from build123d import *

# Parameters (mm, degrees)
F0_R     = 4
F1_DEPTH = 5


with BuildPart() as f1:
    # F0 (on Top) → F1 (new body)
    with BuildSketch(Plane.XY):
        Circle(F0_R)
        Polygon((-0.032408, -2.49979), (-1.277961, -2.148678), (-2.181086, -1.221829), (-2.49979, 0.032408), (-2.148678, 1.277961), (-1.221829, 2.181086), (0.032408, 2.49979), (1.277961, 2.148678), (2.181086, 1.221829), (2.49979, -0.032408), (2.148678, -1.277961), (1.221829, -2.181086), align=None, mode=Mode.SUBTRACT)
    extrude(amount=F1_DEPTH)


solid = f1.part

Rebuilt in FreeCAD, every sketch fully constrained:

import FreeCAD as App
import Part
import Sketcher

V = App.Vector

doc = App.newDocument("Part")
body = doc.addObject("PartDesign::Body", "Body")

sketch1 = body.newObject("Sketcher::SketchObject", "Sketch")
sketch1.AttachmentSupport = (doc.getObject("XY_Plane"), [""])
sketch1.MapMode = "FlatFace"
sketch1.addGeometry(Part.Circle(V(0, 0, 0), V(0, 0, 1), 4), False)
sketch1.addGeometry(Part.LineSegment(V(1.221829, -2.181086, 0), V(-0.032408, -2.49979, 0)), False)
sketch1.addGeometry(Part.LineSegment(V(-0.032408, -2.49979, 0), V(-1.277961, -2.148678, 0)), False)
sketch1.addGeometry(Part.LineSegment(V(-1.277961, -2.148678, 0), V(-2.181086, -1.221829, 0)), False)
sketch1.addGeometry(Part.LineSegment(V(-2.181086, -1.221829, 0), V(-2.49979, 0.032408, 0)), False)
sketch1.addGeometry(Part.LineSegment(V(-2.49979, 0.032408, 0), V(-2.148678, 1.277961, 0)), False)
sketch1.addGeometry(Part.LineSegment(V(-2.148678, 1.277961, 0), V(-1.221829, 2.181086, 0)), False)
sketch1.addGeometry(Part.LineSegment(V(-1.221829, 2.181086, 0), V(0.032408, 2.49979, 0)), False)
sketch1.addGeometry(Part.LineSegment(V(0.032408, 2.49979, 0), V(1.277961, 2.148678, 0)), False)
sketch1.addGeometry(Part.LineSegment(V(1.277961, 2.148678, 0), V(2.181086, 1.221829, 0)), False)
sketch1.addGeometry(Part.LineSegment(V(2.181086, 1.221829, 0), V(2.49979, -0.032408, 0)), False)
sketch1.addGeometry(Part.LineSegment(V(2.49979, -0.032408, 0), V(2.148678, -1.277961, 0)), False)
sketch1.addGeometry(Part.LineSegment(V(2.148678, -1.277961, 0), V(1.221829, -2.181086, 0)), False)
sketch1.addConstraint(Sketcher.Constraint("Coincident", 1, 2, 2, 1))
sketch1.addConstraint(Sketcher.Constraint("Coincident", 2, 2, 3, 1))
sketch1.addConstraint(Sketcher.Constraint("Coincident", 3, 2, 4, 1))
sketch1.addConstraint(Sketcher.Constraint("Coincident", 4, 2, 5, 1))
sketch1.addConstraint(Sketcher.Constraint("Coincident", 5, 2, 6, 1))
sketch1.addConstraint(Sketcher.Constraint("Coincident", 6, 2, 7, 1))
sketch1.addConstraint(Sketcher.Constraint("Coincident", 7, 2, 8, 1))
sketch1.addConstraint(Sketcher.Constraint("Coincident", 8, 2, 9, 1))
sketch1.addConstraint(Sketcher.Constraint("Coincident", 9, 2, 10, 1))
sketch1.addConstraint(Sketcher.Constraint("Coincident", 10, 2, 11, 1))
sketch1.addConstraint(Sketcher.Constraint("Coincident", 11, 2, 12, 1))
sketch1.addConstraint(Sketcher.Constraint("Coincident", 12, 2, 1, 1))
sketch1.addConstraint(Sketcher.Constraint("Coincident", 0, 3, -1, 1))
sketch1.addConstraint(Sketcher.Constraint("Symmetric", 1, 2, 7, 2, -1, 1))
sketch1.addConstraint(Sketcher.Constraint("Symmetric", 2, 2, 8, 2, -1, 1))
sketch1.addConstraint(Sketcher.Constraint("Symmetric", 3, 2, 9, 2, -1, 1))
sketch1.addConstraint(Sketcher.Constraint("Symmetric", 4, 2, 10, 2, -1, 1))
sketch1.addConstraint(Sketcher.Constraint("Symmetric", 5, 2, 11, 2, -1, 1))
sketch1.addConstraint(Sketcher.Constraint("Symmetric", 6, 2, 12, 2, -1, 1))
sketch1.addConstraint(Sketcher.Constraint("Perpendicular", 1, 4))
sketch1.addConstraint(Sketcher.Constraint("Perpendicular", 2, 5))
sketch1.addConstraint(Sketcher.Constraint("Perpendicular", 3, 6))
sketch1.addConstraint(Sketcher.Constraint("Equal", 1, 2))
sketch1.addConstraint(Sketcher.Constraint("Equal", 2, 3))
sketch1.addConstraint(Sketcher.Constraint("Equal", 3, 4))
sketch1.addConstraint(Sketcher.Constraint("Equal", 4, 5))
sketch1.addConstraint(Sketcher.Constraint("Equal", 5, 6))
sketch1.addConstraint(Sketcher.Constraint("Diameter", 0, 8.0))
sketch1.addConstraint(Sketcher.Constraint("DistanceY", 1, 2, 4, 2, 2.532198))
sketch1.addConstraint(Sketcher.Constraint("DistanceY", 1, 2, -1, 1, 2.49979))
sketch1.addConstraint(Sketcher.Constraint("DistanceX", 2, 2, -1, 1, 1.277961))
sketch1.addConstraint(Sketcher.Constraint("DistanceY", 3, 2, -1, 1, 1.221829))
pad1 = body.newObject("PartDesign::Pad", "Pad")
pad1.Profile = sketch1
pad1.Length = 5

doc.recompute()
